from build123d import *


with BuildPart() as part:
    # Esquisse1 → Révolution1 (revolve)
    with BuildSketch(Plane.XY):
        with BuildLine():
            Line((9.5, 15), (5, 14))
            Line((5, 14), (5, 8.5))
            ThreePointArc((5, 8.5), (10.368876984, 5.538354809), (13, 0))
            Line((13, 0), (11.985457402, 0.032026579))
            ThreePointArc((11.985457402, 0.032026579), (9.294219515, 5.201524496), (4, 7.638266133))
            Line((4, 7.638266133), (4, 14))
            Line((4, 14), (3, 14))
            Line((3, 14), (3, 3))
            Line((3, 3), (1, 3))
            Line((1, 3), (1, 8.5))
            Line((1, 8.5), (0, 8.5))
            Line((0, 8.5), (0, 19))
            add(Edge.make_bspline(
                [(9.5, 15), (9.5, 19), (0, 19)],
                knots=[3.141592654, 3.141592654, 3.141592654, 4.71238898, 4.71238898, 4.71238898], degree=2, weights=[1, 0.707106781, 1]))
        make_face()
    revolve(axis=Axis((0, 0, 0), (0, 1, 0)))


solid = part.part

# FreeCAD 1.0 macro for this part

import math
import FreeCAD as App
import Part
import Sketcher
from FreeCAD import Vector
Q = App.Units.Quantity

doc = App.newDocument("Part")
body = doc.addObject("PartDesign::Body", "Body")

# Sketch on XY plane
sketch1 = doc.addObject("Sketcher::SketchObject", "Sketch")
body.addObject(sketch1)
sketch1.AttachmentSupport = (doc.XY_Plane, [""])
sketch1.MapMode = "FlatFace"
sketch1.addGeometry([
    Part.LineSegment(Vector(5, 14, 0), Vector(9.5, 15, 0)),  # 0
    Part.BSplineCurve([Vector(9.5, 15, 0), Vector(9.5, 19, 0), Vector(0, 19, 0)], [3, 3], [3.141592654, 4.71238898], False, 2, [1, 0.707106781, 1], False),  # 1
    Part.LineSegment(Vector(0, 19, 0), Vector(0, 8.5, 0)),  # 2
    Part.LineSegment(Vector(0, 8.5, 0), Vector(1, 8.5, 0)),  # 3
    Part.LineSegment(Vector(1, 8.5, 0), Vector(1, 3, 0)),  # 4
    Part.LineSegment(Vector(1, 3, 0), Vector(3, 3, 0)),  # 5
    Part.LineSegment(Vector(3, 3, 0), Vector(3, 14, 0)),  # 6
    Part.LineSegment(Vector(3, 14, 0), Vector(4, 14, 0)),  # 7
    Part.LineSegment(Vector(4, 14, 0), Vector(4, 7.638266, 0)),  # 8
    Part.ArcOfCircle(Part.Circle(Vector(3.086877, -1.315292, 0), Vector(0, 0, 1), 9), math.radians(8.609662), math.radians(84.176859)),  # 9
    Part.LineSegment(Vector(11.985457, 0.032027, 0), Vector(13, 0, 0)),  # 10
    Part.ArcOfCircle(Part.Circle(Vector(3.086877, -1.315292, 0), Vector(0, 0, 1), 10), math.radians(7.557969), math.radians(78.970622)),  # 11
    Part.LineSegment(Vector(5, 8.5, 0), Vector(5, 14, 0)),  # 12
], False)
sketch1.addConstraint([
    Sketcher.Constraint("Block", 1),
    Sketcher.Constraint("Coincident", 0, 2, 1, 1),
    Sketcher.Constraint("Coincident", 1, 2, 2, 1),
    Sketcher.Constraint("Coincident", 2, 2, 3, 1),
    Sketcher.Constraint("Coincident", 3, 2, 4, 1),
    Sketcher.Constraint("Coincident", 4, 2, 5, 1),
    Sketcher.Constraint("Coincident", 5, 2, 6, 1),
    Sketcher.Constraint("Coincident", 6, 2, 7, 1),
    Sketcher.Constraint("Coincident", 7, 2, 8, 1),
    Sketcher.Constraint("Coincident", 8, 2, 9, 2),
    Sketcher.Constraint("Coincident", 9, 1, 10, 1),
    Sketcher.Constraint("Coincident", 10, 2, 11, 1),
    Sketcher.Constraint("Coincident", 11, 2, 12, 1),
    Sketcher.Constraint("Coincident", 12, 2, 0, 1),
    Sketcher.Constraint("Vertical", 2),
    Sketcher.Constraint("Horizontal", 3),
    Sketcher.Constraint("Vertical", 4),
    Sketcher.Constraint("Horizontal", 5),
    Sketcher.Constraint("Vertical", 6),
    Sketcher.Constraint("Horizontal", 7),
    Sketcher.Constraint("Vertical", 8),
    Sketcher.Constraint("Vertical", 12),
    Sketcher.Constraint("Coincident", 11, 3, 9, 3),
    Sketcher.Constraint("PointOnObject", 10, 2, -1),
    Sketcher.Constraint("Horizontal", 3, 2, 11, 2),
    Sketcher.Constraint("Horizontal", 7, 2, 12, 2),
    Sketcher.Constraint("Equal", 3, 7),
    Sketcher.Constraint("Equal", 4, 12),
    Sketcher.Constraint("Radius", 9, Q("9 mm")),
    Sketcher.Constraint("Radius", 11, Q("10 mm")),
    Sketcher.Constraint("DistanceX", 3, 1, 3, 2, Q("1 mm")),
    Sketcher.Constraint("DistanceX", 5, 1, 5, 2, Q("2 mm")),
    Sketcher.Constraint("DistanceY", 6, 1, 6, 2, Q("11 mm")),
    Sketcher.Constraint("DistanceY", 2, 2, 2, 1, Q("10.5 mm")),
    Sketcher.Constraint("DistanceX", -1, 1, 10, 2, Q("13 mm")),
    Sketcher.Constraint("DistanceX", -1, 1, 11, 2, Q("5 mm")),
    Sketcher.Constraint("DistanceX", 11, 3, 9, 1, Q("8.89858 mm")),
])
revolution = doc.addObject("PartDesign::Revolution", "Revolution")
body.addObject(revolution)
revolution.Profile = sketch1
revolution.ReferenceAxis = (sketch1, ["V_Axis"])
revolution.Angle = 360

doc.recompute()
